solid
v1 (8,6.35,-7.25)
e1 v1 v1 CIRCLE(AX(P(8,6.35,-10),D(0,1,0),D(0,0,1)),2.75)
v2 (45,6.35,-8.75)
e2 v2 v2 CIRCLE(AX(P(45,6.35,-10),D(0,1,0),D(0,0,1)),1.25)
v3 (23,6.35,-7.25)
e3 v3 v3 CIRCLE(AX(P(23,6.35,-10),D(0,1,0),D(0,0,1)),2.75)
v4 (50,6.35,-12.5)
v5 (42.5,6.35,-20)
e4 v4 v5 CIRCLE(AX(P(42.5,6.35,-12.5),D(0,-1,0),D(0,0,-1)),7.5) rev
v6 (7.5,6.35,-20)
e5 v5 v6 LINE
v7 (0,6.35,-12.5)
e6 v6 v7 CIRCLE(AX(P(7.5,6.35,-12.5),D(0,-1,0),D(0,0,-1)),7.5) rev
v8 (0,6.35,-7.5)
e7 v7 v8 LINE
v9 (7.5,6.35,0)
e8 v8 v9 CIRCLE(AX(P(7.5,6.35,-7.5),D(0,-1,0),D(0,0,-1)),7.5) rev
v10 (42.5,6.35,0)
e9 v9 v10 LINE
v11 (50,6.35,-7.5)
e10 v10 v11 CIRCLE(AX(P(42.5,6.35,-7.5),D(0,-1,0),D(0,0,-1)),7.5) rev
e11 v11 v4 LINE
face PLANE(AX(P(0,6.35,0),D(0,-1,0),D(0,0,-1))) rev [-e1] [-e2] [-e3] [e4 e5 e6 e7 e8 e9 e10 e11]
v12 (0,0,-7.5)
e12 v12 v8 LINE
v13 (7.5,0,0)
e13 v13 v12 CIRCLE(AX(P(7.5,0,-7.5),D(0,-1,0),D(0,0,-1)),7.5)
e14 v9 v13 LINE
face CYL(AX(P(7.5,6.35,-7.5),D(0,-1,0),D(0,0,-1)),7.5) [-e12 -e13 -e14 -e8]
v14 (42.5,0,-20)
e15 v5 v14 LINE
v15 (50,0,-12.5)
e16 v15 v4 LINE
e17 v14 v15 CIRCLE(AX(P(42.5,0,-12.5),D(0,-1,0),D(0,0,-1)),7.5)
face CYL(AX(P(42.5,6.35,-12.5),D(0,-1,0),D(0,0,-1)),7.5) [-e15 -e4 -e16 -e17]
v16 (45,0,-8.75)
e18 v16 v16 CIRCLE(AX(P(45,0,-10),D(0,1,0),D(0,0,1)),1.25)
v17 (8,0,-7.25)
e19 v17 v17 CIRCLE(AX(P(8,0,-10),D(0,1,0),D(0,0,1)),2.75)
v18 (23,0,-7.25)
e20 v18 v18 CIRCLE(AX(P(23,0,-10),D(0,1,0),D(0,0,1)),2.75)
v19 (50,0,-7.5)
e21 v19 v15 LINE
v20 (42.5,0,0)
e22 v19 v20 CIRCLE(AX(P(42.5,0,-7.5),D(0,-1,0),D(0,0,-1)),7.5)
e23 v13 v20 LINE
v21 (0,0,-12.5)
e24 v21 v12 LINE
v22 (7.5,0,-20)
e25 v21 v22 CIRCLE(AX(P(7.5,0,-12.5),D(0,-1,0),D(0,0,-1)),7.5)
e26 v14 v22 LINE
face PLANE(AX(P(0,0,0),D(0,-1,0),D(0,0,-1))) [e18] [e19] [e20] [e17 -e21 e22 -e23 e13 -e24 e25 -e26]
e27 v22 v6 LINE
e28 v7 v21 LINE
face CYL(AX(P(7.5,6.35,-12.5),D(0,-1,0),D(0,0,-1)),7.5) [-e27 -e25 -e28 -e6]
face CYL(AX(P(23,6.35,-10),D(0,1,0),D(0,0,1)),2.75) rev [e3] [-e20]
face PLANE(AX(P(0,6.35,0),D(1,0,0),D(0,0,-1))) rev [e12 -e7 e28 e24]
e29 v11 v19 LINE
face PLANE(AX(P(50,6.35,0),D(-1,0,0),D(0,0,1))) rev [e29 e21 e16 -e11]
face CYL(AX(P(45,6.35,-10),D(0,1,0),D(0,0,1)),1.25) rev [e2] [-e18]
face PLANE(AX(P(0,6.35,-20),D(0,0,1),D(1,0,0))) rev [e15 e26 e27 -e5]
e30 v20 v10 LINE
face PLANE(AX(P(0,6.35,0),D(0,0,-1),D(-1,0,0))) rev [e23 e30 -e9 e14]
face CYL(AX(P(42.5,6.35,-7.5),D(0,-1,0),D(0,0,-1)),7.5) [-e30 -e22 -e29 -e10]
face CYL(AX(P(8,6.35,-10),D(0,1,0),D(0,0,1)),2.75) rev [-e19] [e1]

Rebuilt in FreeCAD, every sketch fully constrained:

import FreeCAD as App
import Part
import Sketcher
from FreeCAD import Vector


def edges_at(feature, points):
    """Names of the edges that pass closest to the given points."""
    edges = feature.Shape.Edges
    near = lambda p: min(range(len(edges)), key=lambda i: edges[i].distToShape(Part.Vertex(*p))[0])
    return sorted({f"Edge{near(p) + 1}" for p in points})

doc = App.newDocument("Part")
params = doc.addObject("Spreadsheet::Sheet", "Params")
for row, (alias, value) in enumerate([
    ("sketch1_width", "50 mm"),
    ("sketch1_height", "20 mm"),
    ("pad1_length", "6.35 mm"),
    ("sketch2_diameter", "5.5 mm"),
    ("hole_diameter", "5.5 mm"),
    ("sketch3_diameter", "2.5 mm"),
    ("hole2_diameter", "2.5 mm"),
    ("hole2_depth", "6.35 mm"),
    ("fillet_radius", "7.5 mm"),
], start=1):
    params.set(f"A{row}", alias)
    params.set(f"B{row}", "=" + value)
    params.setAlias(f"B{row}", alias)

body = doc.addObject("PartDesign::Body", "Body")

# Sketch on XZ plane
sketch1 = body.newObject("Sketcher::SketchObject", "Sketch")
sketch1.AttachmentSupport = (doc.getObject("XZ_Plane"), [""])
sketch1.MapMode = "FlatFace"
sketch1.addGeometry(Part.LineSegment(Vector(0, -20, 0), Vector(0, 0, 0)), False)
sketch1.addGeometry(Part.LineSegment(Vector(0, 0, 0), Vector(50, 0, 0)), False)
sketch1.addGeometry(Part.LineSegment(Vector(50, 0, 0), Vector(50, -20, 0)), False)
sketch1.addGeometry(Part.LineSegment(Vector(50, -20, 0), Vector(0, -20, 0)), False)
sketch1.addConstraint(Sketcher.Constraint("Coincident", 0, 2, 1, 1))
sketch1.addConstraint(Sketcher.Constraint("Coincident", 1, 2, 2, 1))
sketch1.addConstraint(Sketcher.Constraint("Coincident", 2, 2, 3, 1))
sketch1.addConstraint(Sketcher.Constraint("Coincident", 3, 2, 0, 1))
sketch1.addConstraint(Sketcher.Constraint("Vertical", 0))
sketch1.addConstraint(Sketcher.Constraint("Horizontal", 1))
sketch1.addConstraint(Sketcher.Constraint("Vertical", 2))
sketch1.addConstraint(Sketcher.Constraint("Horizontal", 3))
sketch1.addConstraint(Sketcher.Constraint("Coincident", 0, 2, -1, 1))
sketch1.addConstraint(Sketcher.Constraint("DistanceX", 1, 1, 1, 2, 50.0))
sketch1.addConstraint(Sketcher.Constraint("DistanceY", 0, 1, 0, 2, 20.0))
sketch1.setExpression("Constraints[9]", "Params.sketch1_width")
sketch1.setExpression("Constraints[10]", "Params.sketch1_height")
pad1 = body.newObject("PartDesign::Pad", "Pad")
pad1.Profile = sketch1
pad1.setExpression("Length", "Params.pad1_length")
pad1.Reversed = True

# Sketch on XZ plane
sketch2 = body.newObject("Sketcher::SketchObject", "Sketch001")
sketch2.AttachmentSupport = (doc.getObject("XZ_Plane"), [""])
sketch2.MapMode = "FlatFace"
sketch2.AttachmentOffset = App.Placement(Vector(0, 0, -6.35), App.Rotation())
sketch2.addGeometry(Part.Circle(Vector(8, -10, 0), Vector(0, 0, 1), 2.8), False)
sketch2.addGeometry(Part.Circle(Vector(23, -10, 0), Vector(0, 0, 1), 2.8), False)
sketch2.addConstraint(Sketcher.Constraint("Equal", 0, 1))
sketch2.addConstraint(Sketcher.Constraint("Horizontal", 0, 3, 1, 3))
sketch2.addConstraint(Sketcher.Constraint("Diameter", 0, 5.5))
sketch2.addConstraint(Sketcher.Constraint("DistanceX", -1, 1, 0, 3, 8.0))
sketch2.addConstraint(Sketcher.Constraint("DistanceY", 0, 3, -1, 1, 10.0))
sketch2.addConstraint(Sketcher.Constraint("DistanceX", -1, 1, 1, 3, 23.0))
sketch2.setExpression("Constraints[2]", "Params.sketch2_diameter")
doc.recompute()
hole = body.newObject("PartDesign::Hole", "Hole")
hole.Profile = sketch2
hole.ThreadType = "None"
hole.setExpression("Diameter", "Params.hole_diameter")
hole.DepthType = "ThroughAll"
hole.Reversed = True

# Sketch on XZ plane
sketch3 = body.newObject("Sketcher::SketchObject", "Sketch002")
sketch3.AttachmentSupport = (doc.getObject("XZ_Plane"), [""])
sketch3.MapMode = "FlatFace"
sketch3.AttachmentOffset = App.Placement(Vector(0, 0, -6.35), App.Rotation())
sketch3.addGeometry(Part.Circle(Vector(45, -10, 0), Vector(0, 0, 1), 1.2), False)
sketch3.addConstraint(Sketcher.Constraint("Diameter", 0, 2.5))
sketch3.addConstraint(Sketcher.Constraint("DistanceX", -1, 1, 0, 3, 45.0))
sketch3.addConstraint(Sketcher.Constraint("DistanceY", 0, 3, -1, 1, 10.0))
sketch3.setExpression("Constraints[0]", "Params.sketch3_diameter")
doc.recompute()
hole2 = body.newObject("PartDesign::Hole", "Hole001")
hole2.Profile = sketch3
hole2.ThreadType = "None"
hole2.setExpression("Diameter", "Params.hole2_diameter")
hole2.DepthType = "Dimension"
hole2.setExpression("Depth", "Params.hole2_depth")
hole2.DrillPoint = "Angled"
hole2.DrillPointAngle = 118
hole2.Reversed = True
doc.recompute()

fillet = body.newObject("PartDesign::Fillet", "Fillet")
fillet.Base = (hole2, edges_at(hole2, [
    (0, 3.175, -20),
    (50, 3.175, -20),
    (50, 3.175, 0),
    (0, 3.175, 0),
]))
fillet.setExpression("Radius", "Params.fillet_radius")

doc.recompute()
